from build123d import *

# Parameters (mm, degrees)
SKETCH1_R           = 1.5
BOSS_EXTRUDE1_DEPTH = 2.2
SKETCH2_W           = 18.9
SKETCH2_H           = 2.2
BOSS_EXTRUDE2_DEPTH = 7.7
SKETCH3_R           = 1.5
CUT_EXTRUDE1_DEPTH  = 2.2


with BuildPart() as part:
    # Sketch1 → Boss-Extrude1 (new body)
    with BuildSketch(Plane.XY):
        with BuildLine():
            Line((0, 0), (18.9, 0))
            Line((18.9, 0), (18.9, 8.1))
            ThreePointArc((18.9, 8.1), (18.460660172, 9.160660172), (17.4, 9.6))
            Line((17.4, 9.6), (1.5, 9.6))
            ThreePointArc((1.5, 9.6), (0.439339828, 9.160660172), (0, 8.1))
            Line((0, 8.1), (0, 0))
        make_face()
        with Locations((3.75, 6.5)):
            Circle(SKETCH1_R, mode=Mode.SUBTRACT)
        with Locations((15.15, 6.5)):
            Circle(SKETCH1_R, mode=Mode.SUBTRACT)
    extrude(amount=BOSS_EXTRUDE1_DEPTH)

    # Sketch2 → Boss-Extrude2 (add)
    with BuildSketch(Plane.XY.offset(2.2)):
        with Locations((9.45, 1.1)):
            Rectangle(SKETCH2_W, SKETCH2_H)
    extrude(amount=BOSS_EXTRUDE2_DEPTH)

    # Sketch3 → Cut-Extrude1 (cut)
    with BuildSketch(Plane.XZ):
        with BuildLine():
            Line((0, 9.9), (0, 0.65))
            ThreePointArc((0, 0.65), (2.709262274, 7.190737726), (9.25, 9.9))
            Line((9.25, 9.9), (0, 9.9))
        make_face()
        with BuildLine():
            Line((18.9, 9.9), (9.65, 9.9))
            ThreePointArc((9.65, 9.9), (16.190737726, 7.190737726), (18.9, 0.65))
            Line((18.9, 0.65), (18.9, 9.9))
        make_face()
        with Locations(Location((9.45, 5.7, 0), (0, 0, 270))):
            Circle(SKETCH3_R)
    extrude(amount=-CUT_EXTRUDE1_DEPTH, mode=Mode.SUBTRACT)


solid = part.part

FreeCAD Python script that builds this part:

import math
import FreeCAD as App
import Part
import Sketcher

V = App.Vector

doc = App.newDocument("Part")
params = doc.addObject("Spreadsheet::Sheet", "Params")
for row, (alias, value) in enumerate([
    ("sketch1_diameter", "3 mm"),
    ("sketch1_width", "18.9 mm"),
    ("sketch1_height", "8.1 mm"),
    ("pad1_length", "2.2 mm"),
    ("sketch2_width", "18.9 mm"),
    ("sketch2_height", "2.2 mm"),
    ("pad2_length", "7.7 mm"),
    ("sketch3_diameter", "3 mm"),
    ("sketch3_radius", "9.25 mm"),
    ("pocket1_length", "2.2 mm"),
], start=1):
    params.set(f"A{row}", alias)
    params.set(f"B{row}", "=" + value)
    params.setAlias(f"B{row}", alias)

body = doc.addObject("PartDesign::Body", "Body")

# Sketch on XY plane
sketch1 = body.newObject("Sketcher::SketchObject", "Sketch")
sketch1.AttachmentSupport = (doc.getObject("XY_Plane"), [""])
sketch1.MapMode = "FlatFace"
sketch1.addGeometry([
    Part.LineSegment(V(0, 0, 0), V(18.9, 0, 0)),  # 0
    Part.LineSegment(V(18.9, 0, 0), V(18.9, 8.1, 0)),  # 1
    Part.ArcOfCircle(Part.Circle(V(17.4, 8.1, 0), V(0, 0, 1), 1.5), math.radians(0), math.radians(90)),  # 2
    Part.LineSegment(V(17.4, 9.6, 0), V(1.5, 9.6, 0)),  # 3
    Part.ArcOfCircle(Part.Circle(V(1.5, 8.1, 0), V(0, 0, 1), 1.5), math.radians(90), math.radians(180)),  # 4
    Part.LineSegment(V(0, 8.1, 0), V(0, 0, 0)),  # 5
    Part.Circle(V(3.8, 6.5, 0), V(0, 0, 1), 1.5),  # 6
    Part.Circle(V(15.2, 6.5, 0), V(0, 0, 1), 1.5),  # 7
], False)
sketch1.addConstraint([
    Sketcher.Constraint("Coincident", 0, 2, 1, 1),
    Sketcher.Constraint("Tangent", 1, 2, 2, 1),
    Sketcher.Constraint("Tangent", 2, 2, 3, 1),
    Sketcher.Constraint("Tangent", 3, 2, 4, 1),
    Sketcher.Constraint("Tangent", 4, 2, 5, 1),
    Sketcher.Constraint("Coincident", 5, 2, 0, 1),
    Sketcher.Constraint("Horizontal", 0),
    Sketcher.Constraint("Vertical", 1),
    Sketcher.Constraint("Horizontal", 3),
    Sketcher.Constraint("Vertical", 5),
    Sketcher.Constraint("Coincident", 5, 2, -1, 1),
    Sketcher.Constraint("Equal", 2, 4),
    Sketcher.Constraint("Equal", 4, 6),
    Sketcher.Constraint("Equal", 6, 7),
    Sketcher.Constraint("Horizontal", 6, 3, 7, 3),
    Sketcher.Constraint("Diameter", 6, 3.0),
    Sketcher.Constraint("DistanceX", 0, 1, 0, 2, 18.9),
    Sketcher.Constraint("DistanceY", 1, 1, 1, 2, 8.1),
    Sketcher.Constraint("DistanceY", -1, 1, 6, 3, 6.5),
    Sketcher.Constraint("DistanceX", 6, 3, 7, 3, 11.4),
    Sketcher.Constraint("DistanceX", -1, 1, 6, 3, 3.75),
])
sketch1.setExpression("Constraints[15]", "Params.sketch1_diameter")
sketch1.setExpression("Constraints[16]", "Params.sketch1_width")
sketch1.setExpression("Constraints[17]", "Params.sketch1_height")
pad1 = body.newObject("PartDesign::Pad", "Pad")
pad1.Profile = sketch1
pad1.setExpression("Length", "Params.pad1_length")

# Sketch on XY plane
sketch2 = body.newObject("Sketcher::SketchObject", "Sketch001")
sketch2.AttachmentSupport = (doc.getObject("XY_Plane"), [""])
sketch2.MapMode = "FlatFace"
sketch2.AttachmentOffset = App.Placement(V(0, 0, 2.2), App.Rotation())
sketch2.addGeometry([
    Part.LineSegment(V(0, 2.2, 0), V(0, 0, 0)),
    Part.LineSegment(V(0, 0, 0), V(18.9, 0, 0)),
    Part.LineSegment(V(18.9, 0, 0), V(18.9, 2.2, 0)),
    Part.LineSegment(V(18.9, 2.2, 0), V(0, 2.2, 0)),
], False)
sketch2.addConstraint([
    Sketcher.Constraint("Coincident", 0, 2, 1, 1),
    Sketcher.Constraint("Coincident", 1, 2, 2, 1),
    Sketcher.Constraint("Coincident", 2, 2, 3, 1),
    Sketcher.Constraint("Coincident", 3, 2, 0, 1),
    Sketcher.Constraint("Vertical", 0),
    Sketcher.Constraint("Horizontal", 1),
    Sketcher.Constraint("Vertical", 2),
    Sketcher.Constraint("Horizontal", 3),
    Sketcher.Constraint("Coincident", 0, 2, -1, 1),
    Sketcher.Constraint("DistanceX", 1, 1, 1, 2, 18.9),
    Sketcher.Constraint("DistanceY", 0, 2, 0, 1, 2.2),
])
sketch2.setExpression("Constraints[9]", "Params.sketch2_width")
sketch2.setExpression("Constraints[10]", "Params.sketch2_height")
pad2 = body.newObject("PartDesign::Pad", "Pad001")
pad2.Profile = sketch2
pad2.setExpression("Length", "Params.pad2_length")

# Sketch on XZ plane
sketch3 = body.newObject("Sketcher::SketchObject", "Sketch002")
sketch3.AttachmentSupport = (doc.getObject("XZ_Plane"), [""])
sketch3.MapMode = "FlatFace"
sketch3.addGeometry([
    Part.LineSegment(V(0, 9.9, 0), V(0, 0.7, 0)),  # 0
    Part.ArcOfCircle(Part.Circle(V(9.2, 0.7, 0), V(0, 0, 1), 9.2), math.radians(90), math.radians(180)),  # 1
    Part.LineSegment(V(9.2, 9.9, 0), V(0, 9.9, 0)),  # 2
    Part.LineSegment(V(18.9, 9.9, 0), V(9.7, 9.9, 0)),  # 3
    Part.ArcOfCircle(Part.Circle(V(9.7, 0.7, 0), V(0, 0, 1), 9.2), math.radians(0), math.radians(90)),  # 4
    Part.LineSegment(V(18.9, 0.7, 0), V(18.9, 9.9, 0)),  # 5
    Part.Circle(V(9.4, 5.7, 0), V(0, 0, 1), 1.5),  # 6
], False)
sketch3.addConstraint([
    Sketcher.Constraint("Tangent", 0, 2, 1, 2),
    Sketcher.Constraint("Tangent", 1, 1, 2, 1),
    Sketcher.Constraint("Coincident", 2, 2, 0, 1),
    Sketcher.Constraint("Tangent", 3, 2, 4, 2),
    Sketcher.Constraint("Tangent", 4, 1, 5, 1),
    Sketcher.Constraint("Coincident", 5, 2, 3, 1),
    Sketcher.Constraint("Vertical", 0),
    Sketcher.Constraint("Horizontal", 2),
    Sketcher.Constraint("Horizontal", 3),
    Sketcher.Constraint("Vertical", 5),
    Sketcher.Constraint("Equal", 1, 4),
    Sketcher.Constraint("PointOnObject", 0, 2, -2),
    Sketcher.Constraint("Horizontal", 1, 3, 4, 3),
    Sketcher.Constraint("Diameter", 6, 3.0),
    Sketcher.Constraint("Radius", 1, 9.25),
    Sketcher.Constraint("DistanceY", -1, 1, 6, 3, 5.7),
    Sketcher.Constraint("DistanceY", -1, 1, 1, 1, 9.9),
    Sketcher.Constraint("DistanceX", -1, 1, 4, 1, 18.9),
    Sketcher.Constraint("DistanceX", 1, 3, 6, 3, 0.2),
])
sketch3.setExpression("Constraints[13]", "Params.sketch3_diameter")
sketch3.setExpression("Constraints[14]", "Params.sketch3_radius")
pocket1 = body.newObject("PartDesign::Pocket", "Pocket")
pocket1.Profile = sketch3
pocket1.setExpression("Length", "Params.pocket1_length")

doc.recompute()
